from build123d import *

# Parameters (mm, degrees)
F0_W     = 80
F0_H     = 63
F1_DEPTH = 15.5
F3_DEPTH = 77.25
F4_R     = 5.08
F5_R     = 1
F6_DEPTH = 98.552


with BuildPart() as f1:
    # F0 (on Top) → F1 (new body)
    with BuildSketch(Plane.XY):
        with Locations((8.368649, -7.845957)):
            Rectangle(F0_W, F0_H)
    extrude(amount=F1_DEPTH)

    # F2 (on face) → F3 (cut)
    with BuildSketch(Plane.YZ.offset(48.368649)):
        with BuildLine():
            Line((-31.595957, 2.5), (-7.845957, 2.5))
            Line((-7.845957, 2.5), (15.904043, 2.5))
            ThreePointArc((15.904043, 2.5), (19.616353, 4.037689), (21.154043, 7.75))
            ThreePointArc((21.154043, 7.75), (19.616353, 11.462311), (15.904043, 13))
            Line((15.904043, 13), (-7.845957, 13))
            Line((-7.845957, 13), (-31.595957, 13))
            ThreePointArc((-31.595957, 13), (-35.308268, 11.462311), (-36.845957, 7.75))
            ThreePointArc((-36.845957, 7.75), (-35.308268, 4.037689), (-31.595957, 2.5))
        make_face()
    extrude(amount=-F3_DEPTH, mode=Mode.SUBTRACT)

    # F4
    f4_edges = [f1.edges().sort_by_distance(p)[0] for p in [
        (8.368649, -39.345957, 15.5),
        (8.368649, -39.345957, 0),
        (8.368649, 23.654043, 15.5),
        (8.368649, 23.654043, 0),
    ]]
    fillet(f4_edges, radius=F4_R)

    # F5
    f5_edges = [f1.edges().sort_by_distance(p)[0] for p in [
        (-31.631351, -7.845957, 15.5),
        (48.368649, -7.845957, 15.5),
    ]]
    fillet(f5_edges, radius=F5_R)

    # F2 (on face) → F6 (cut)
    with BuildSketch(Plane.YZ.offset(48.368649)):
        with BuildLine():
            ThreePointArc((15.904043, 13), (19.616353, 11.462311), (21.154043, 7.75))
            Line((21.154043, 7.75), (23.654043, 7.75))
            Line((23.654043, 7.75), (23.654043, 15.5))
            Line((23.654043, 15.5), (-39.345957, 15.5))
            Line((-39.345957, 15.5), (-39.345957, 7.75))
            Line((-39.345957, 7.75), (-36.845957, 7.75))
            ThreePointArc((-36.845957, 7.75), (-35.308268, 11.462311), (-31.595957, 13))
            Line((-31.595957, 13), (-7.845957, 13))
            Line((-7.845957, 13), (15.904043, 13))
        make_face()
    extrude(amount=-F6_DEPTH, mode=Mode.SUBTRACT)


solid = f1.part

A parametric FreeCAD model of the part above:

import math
import FreeCAD as App
import Part
import Sketcher

V = App.Vector


def edges_at(feature, points):
    """Names of the edges that pass closest to the given points."""
    edges = feature.Shape.Edges
    near = lambda p: min(range(len(edges)), key=lambda i: edges[i].distToShape(Part.Vertex(*p))[0])
    return sorted({f"Edge{near(p) + 1}" for p in points})

doc = App.newDocument("Part")
params = doc.addObject("Spreadsheet::Sheet", "Params")
for row, (alias, value) in enumerate([
    ("sketch1_width", "80 mm"),
    ("sketch1_height", "63 mm"),
    ("pad1_length", "15.5 mm"),
    ("sketch2_radius", "5.25 mm"),
    ("sketch2_width", "47.5 mm"),
    ("pocket1_length", "77.25 mm"),
    ("fillet_radius", "5.08 mm"),
    ("fillet2_radius", "1 mm"),
    ("sketch3_width", "63 mm"),
    ("sketch3_radius", "5.25 mm"),
    ("sketch3_width2", "2.5 mm"),
    ("sketch3_height", "7.75 mm"),
    ("pocket2_length", "98.552 mm"),
], start=1):
    params.set(f"A{row}", alias)
    params.set(f"B{row}", "=" + value)
    params.setAlias(f"B{row}", alias)

body = doc.addObject("PartDesign::Body", "Body")

# Sketch on XY plane
sketch1 = body.newObject("Sketcher::SketchObject", "Sketch")
sketch1.AttachmentSupport = (doc.getObject("XY_Plane"), [""])
sketch1.MapMode = "FlatFace"
sketch1.addGeometry(Part.LineSegment(V(-31.631351, 23.654043, 0), V(-31.631351, -39.345957, 0)), False)
sketch1.addGeometry(Part.LineSegment(V(-31.631351, -39.345957, 0), V(48.368649, -39.345957, 0)), False)
sketch1.addGeometry(Part.LineSegment(V(48.368649, -39.345957, 0), V(48.368649, 23.654043, 0)), False)
sketch1.addGeometry(Part.LineSegment(V(48.368649, 23.654043, 0), V(-31.631351, 23.654043, 0)), False)
sketch1.addConstraint(Sketcher.Constraint("Coincident", 0, 2, 1, 1))
sketch1.addConstraint(Sketcher.Constraint("Coincident", 1, 2, 2, 1))
sketch1.addConstraint(Sketcher.Constraint("Coincident", 2, 2, 3, 1))
sketch1.addConstraint(Sketcher.Constraint("Coincident", 3, 2, 0, 1))
sketch1.addConstraint(Sketcher.Constraint("Vertical", 0))
sketch1.addConstraint(Sketcher.Constraint("Horizontal", 1))
sketch1.addConstraint(Sketcher.Constraint("Vertical", 2))
sketch1.addConstraint(Sketcher.Constraint("Horizontal", 3))
sketch1.addConstraint(Sketcher.Constraint("DistanceX", 1, 1, 1, 2, 80.0))
sketch1.addConstraint(Sketcher.Constraint("DistanceY", 0, 2, 0, 1, 63.0))
sketch1.addConstraint(Sketcher.Constraint("DistanceX", 0, 2, -1, 1, 31.631351))
sketch1.addConstraint(Sketcher.Constraint("DistanceY", 0, 2, -1, 1, 39.345957))
sketch1.setExpression("Constraints[8]", "Params.sketch1_width")
sketch1.setExpression("Constraints[9]", "Params.sketch1_height")
pad1 = body.newObject("PartDesign::Pad", "Pad")
pad1.Profile = sketch1
pad1.setExpression("Length", "Params.pad1_length")

# Sketch on YZ plane
sketch2 = body.newObject("Sketcher::SketchObject", "Sketch001")
sketch2.AttachmentSupport = (doc.getObject("YZ_Plane"), [""])
sketch2.MapMode = "FlatFace"
sketch2.AttachmentOffset = App.Placement(V(0, 0, 48.368649), App.Rotation())
sketch2.addGeometry(Part.LineSegment(V(-31.595957, 2.5, 0), V(15.904043, 2.5, 0)), False)
sketch2.addGeometry(Part.ArcOfCircle(Part.Circle(V(15.904043, 7.75, 0), V(0, 0, 1), 5.25), math.radians(-89.999996), math.radians(-0.000004)), False)
sketch2.addGeometry(Part.ArcOfCircle(Part.Circle(V(15.904043, 7.75, 0), V(0, 0, 1), 5.25), math.radians(0.000004), math.radians(89.999996)), False)
sketch2.addGeometry(Part.LineSegment(V(15.904043, 13, 0), V(-31.595957, 13, 0)), False)
sketch2.addGeometry(Part.ArcOfCircle(Part.Circle(V(-31.595958, 7.750001, 0), V(0, 0, 1), 5.249999), math.radians(89.999985), math.radians(180.000015)), False)
sketch2.addGeometry(Part.ArcOfCircle(Part.Circle(V(-31.595958, 7.749999, 0), V(0, 0, 1), 5.249999), math.radians(179.999985), math.radians(270.000015)), False)
sketch2.addConstraint(Sketcher.Constraint("Tangent", 0, 2, 1, 1))
sketch2.addConstraint(Sketcher.Constraint("Tangent", 1, 2, 2, 1))
sketch2.addConstraint(Sketcher.Constraint("Tangent", 2, 2, 3, 1))
sketch2.addConstraint(Sketcher.Constraint("Tangent", 3, 2, 4, 1))
sketch2.addConstraint(Sketcher.Constraint("Tangent", 4, 2, 5, 1))
sketch2.addConstraint(Sketcher.Constraint("Tangent", 5, 2, 0, 1))
sketch2.addConstraint(Sketcher.Constraint("Horizontal", 0))
sketch2.addConstraint(Sketcher.Constraint("Horizontal", 3))
sketch2.addConstraint(Sketcher.Constraint("Equal", 1, 2))
sketch2.addConstraint(Sketcher.Constraint("Equal", 2, 4))
sketch2.addConstraint(Sketcher.Constraint("Horizontal", 5, 3, 1, 2))
sketch2.addConstraint(Sketcher.Constraint("Horizontal", 1, 2, 4, 2))
sketch2.addConstraint(Sketcher.Constraint("Radius", 1, 5.25))
sketch2.addConstraint(Sketcher.Constraint("DistanceX", 0, 1, 0, 2, 47.5))
sketch2.addConstraint(Sketcher.Constraint("DistanceY", -1, 1, 2, 2, 13.0))
sketch2.addConstraint(Sketcher.Constraint("DistanceX", 4, 3, -1, 1, 31.595958))
sketch2.setExpression("Constraints[12]", "Params.sketch2_radius")
sketch2.setExpression("Constraints[13]", "Params.sketch2_width")
pocket1 = body.newObject("PartDesign::Pocket", "Pocket")
pocket1.Profile = sketch2
pocket1.setExpression("Length", "Params.pocket1_length")
doc.recompute()

fillet = body.newObject("PartDesign::Fillet", "Fillet")
fillet.Base = (pocket1, edges_at(pocket1, [
    (8.369, -39.346, 15.5),
    (8.369, -39.346, 0),
    (8.369, 23.654, 15.5),
    (8.369, 23.654, 0),
]))
fillet.setExpression("Radius", "Params.fillet_radius")
doc.recompute()

fillet2 = body.newObject("PartDesign::Fillet", "Fillet001")
fillet2.Base = (fillet, edges_at(fillet, [(-31.631, -7.846, 15.5), (48.369, -7.846, 15.5)]))
fillet2.setExpression("Radius", "Params.fillet2_radius")

# Sketch on YZ plane
sketch3 = body.newObject("Sketcher::SketchObject", "Sketch002")
sketch3.AttachmentSupport = (doc.getObject("YZ_Plane"), [""])
sketch3.MapMode = "FlatFace"
sketch3.AttachmentOffset = App.Placement(V(0, 0, 48.368649), App.Rotation())
sketch3.addGeometry(Part.ArcOfCircle(Part.Circle(V(15.904043, 7.75, 0), V(0, 0, 1), 5.25), math.radians(0.000004), math.radians(89.999996)), False)
sketch3.addGeometry(Part.LineSegment(V(21.154043, 7.75, 0), V(23.654043, 7.75, 0)), False)
sketch3.addGeometry(Part.LineSegment(V(23.654043, 7.75, 0), V(23.654043, 15.5, 0)), False)
sketch3.addGeometry(Part.LineSegment(V(23.654043, 15.5, 0), V(-39.345957, 15.5, 0)), False)
sketch3.addGeometry(Part.LineSegment(V(-39.345957, 15.5, 0), V(-39.345957, 7.75, 0)), False)
sketch3.addGeometry(Part.LineSegment(V(-39.345957, 7.75, 0), V(-36.845957, 7.75, 0)), False)
sketch3.addGeometry(Part.ArcOfCircle(Part.Circle(V(-31.595958, 7.750001, 0), V(0, 0, 1), 5.249999), math.radians(89.999985), math.radians(180.000015)), False)
sketch3.addGeometry(Part.LineSegment(V(-31.595957, 13, 0), V(15.904043, 13, 0)), False)
sketch3.addConstraint(Sketcher.Constraint("Coincident", 0, 1, 1, 1))
sketch3.addConstraint(Sketcher.Constraint("Coincident", 1, 2, 2, 1))
sketch3.addConstraint(Sketcher.Constraint("Coincident", 2, 2, 3, 1))
sketch3.addConstraint(Sketcher.Constraint("Coincident", 3, 2, 4, 1))
sketch3.addConstraint(Sketcher.Constraint("Coincident", 4, 2, 5, 1))
sketch3.addConstraint(Sketcher.Constraint("Coincident", 5, 2, 6, 2))
sketch3.addConstraint(Sketcher.Constraint("Tangent", 6, 1, 7, 1))
sketch3.addConstraint(Sketcher.Constraint("Tangent", 7, 2, 0, 2))
sketch3.addConstraint(Sketcher.Constraint("Horizontal", 1))
sketch3.addConstraint(Sketcher.Constraint("Vertical", 2))
sketch3.addConstraint(Sketcher.Constraint("Horizontal", 3))
sketch3.addConstraint(Sketcher.Constraint("Vertical", 4))
sketch3.addConstraint(Sketcher.Constraint("Horizontal", 5))
sketch3.addConstraint(Sketcher.Constraint("Horizontal", 7))
sketch3.addConstraint(Sketcher.Constraint("Equal", 0, 6))
sketch3.addConstraint(Sketcher.Constraint("Horizontal", 6, 3, 0, 1))
sketch3.addConstraint(Sketcher.Constraint("Horizontal", 1, 2, 4, 2))
sketch3.addConstraint(Sketcher.Constraint("Equal", 1, 5))
sketch3.addConstraint(Sketcher.Constraint("DistanceX", 3, 2, 3, 1, 63.0))
sketch3.addConstraint(Sketcher.Constraint("Radius", 0, 5.25))
sketch3.addConstraint(Sketcher.Constraint("DistanceX", 1, 1, 1, 2, 2.5))
sketch3.addConstraint(Sketcher.Constraint("DistanceY", -1, 1, 6, 1, 13.0))
sketch3.addConstraint(Sketcher.Constraint("DistanceY", 2, 1, 2, 2, 7.75))
sketch3.addConstraint(Sketcher.Constraint("DistanceX", 6, 3, -1, 1, 31.595958))
sketch3.setExpression("Constraints[18]", "Params.sketch3_width")
sketch3.setExpression("Constraints[19]", "Params.sketch3_radius")
sketch3.setExpression("Constraints[20]", "Params.sketch3_width2")
sketch3.setExpression("Constraints[22]", "Params.sketch3_height")
pocket2 = body.newObject("PartDesign::Pocket", "Pocket001")
pocket2.Profile = sketch3
pocket2.setExpression("Length", "Params.pocket2_length")

doc.recompute()
